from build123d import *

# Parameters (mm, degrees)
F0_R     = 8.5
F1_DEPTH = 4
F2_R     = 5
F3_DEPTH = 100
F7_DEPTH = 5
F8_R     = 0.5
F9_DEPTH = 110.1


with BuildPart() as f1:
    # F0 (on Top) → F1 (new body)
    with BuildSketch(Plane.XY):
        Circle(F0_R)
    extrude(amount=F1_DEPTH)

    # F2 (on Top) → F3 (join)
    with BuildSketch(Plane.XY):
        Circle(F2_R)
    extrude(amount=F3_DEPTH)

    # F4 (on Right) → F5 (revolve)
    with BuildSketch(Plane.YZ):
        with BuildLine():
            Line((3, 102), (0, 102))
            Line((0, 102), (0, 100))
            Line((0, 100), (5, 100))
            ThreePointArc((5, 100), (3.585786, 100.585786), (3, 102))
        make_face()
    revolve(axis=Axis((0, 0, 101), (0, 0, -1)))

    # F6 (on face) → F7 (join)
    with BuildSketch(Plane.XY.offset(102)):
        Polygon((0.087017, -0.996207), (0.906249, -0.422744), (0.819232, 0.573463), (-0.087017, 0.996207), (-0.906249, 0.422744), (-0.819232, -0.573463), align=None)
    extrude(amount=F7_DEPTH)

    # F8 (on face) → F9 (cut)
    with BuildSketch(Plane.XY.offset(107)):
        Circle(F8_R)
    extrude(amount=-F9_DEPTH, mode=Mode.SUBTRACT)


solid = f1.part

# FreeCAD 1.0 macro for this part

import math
import FreeCAD as App
import Part
import Sketcher

V = App.Vector
Q = App.Units.Quantity

doc = App.newDocument("Part")
body = doc.addObject("PartDesign::Body", "Body")

# Sketch on XY plane
sketch1 = body.newObject("Sketcher::SketchObject", "Sketch")
sketch1.AttachmentSupport = (doc.getObject("XY_Plane"), [""])
sketch1.MapMode = "FlatFace"
sketch1.addGeometry(Part.Circle(V(0, 0, 0), V(0, 0, 1), 8), False)
sketch1.addConstraint([
    Sketcher.Constraint("Coincident", 0, 3, -1, 1),
    Sketcher.Constraint("Diameter", 0, Q("17 mm")),
])
pad1 = body.newObject("PartDesign::Pad", "Pad")
pad1.Profile = sketch1
pad1.Length = 4

# Sketch on XY plane
sketch2 = body.newObject("Sketcher::SketchObject", "Sketch001")
sketch2.AttachmentSupport = (doc.getObject("XY_Plane"), [""])
sketch2.MapMode = "FlatFace"
sketch2.addGeometry(Part.Circle(V(0, 0, 0), V(0, 0, 1), 5), False)
sketch2.addConstraint([
    Sketcher.Constraint("Coincident", 0, 3, -1, 1),
    Sketcher.Constraint("Diameter", 0, Q("10 mm")),
])
pad2 = body.newObject("PartDesign::Pad", "Pad001")
pad2.Profile = sketch2
pad2.Length = 100

# Sketch on YZ plane
sketch3 = body.newObject("Sketcher::SketchObject", "Sketch002")
sketch3.AttachmentSupport = (doc.getObject("YZ_Plane"), [""])
sketch3.MapMode = "FlatFace"
sketch3.addGeometry([
    Part.LineSegment(V(3, 102, 0), V(0, 102, 0)),
    Part.LineSegment(V(0, 102, 0), V(0, 100, 0)),
    Part.LineSegment(V(0, 100, 0), V(5, 100, 0)),
    Part.ArcOfCircle(Part.Circle(V(5, 102, 0), V(0, 0, 1), 2), math.radians(180), math.radians(270)),
], False)
sketch3.addConstraint([
    Sketcher.Constraint("Coincident", 0, 2, 1, 1),
    Sketcher.Constraint("Coincident", 1, 2, 2, 1),
    Sketcher.Constraint("Tangent", 2, 2, 3, 2),
    Sketcher.Constraint("Coincident", 3, 1, 0, 1),
    Sketcher.Constraint("Horizontal", 0),
    Sketcher.Constraint("Vertical", 1),
    Sketcher.Constraint("Horizontal", 2),
    Sketcher.Constraint("PointOnObject", 0, 2, -2),
    Sketcher.Constraint("Horizontal", 3, 3, 0, 2),
    Sketcher.Constraint("Radius", 3, Q("1.999999 mm")),
    Sketcher.Constraint("DistanceX", 0, 2, 0, 1, Q("3 mm")),
    Sketcher.Constraint("DistanceY", -1, 1, 3, 3, Q("101.999999 mm")),
])
revolution = body.newObject("PartDesign::Revolution", "Revolution")
revolution.Profile = sketch3
revolution.ReferenceAxis = (sketch3, ["V_Axis"])
revolution.Angle = 360

# Sketch on XY plane
sketch4 = body.newObject("Sketcher::SketchObject", "Sketch003")
sketch4.AttachmentSupport = (doc.getObject("XY_Plane"), [""])
sketch4.MapMode = "FlatFace"
sketch4.AttachmentOffset = App.Placement(V(0, 0, 102), App.Rotation())
sketch4.addGeometry([
    Part.LineSegment(V(0.1, -1, 0), V(0.9, -0.4, 0)),  # 0
    Part.LineSegment(V(0.9, -0.4, 0), V(0.8, 0.6, 0)),  # 1
    Part.LineSegment(V(0.8, 0.6, 0), V(-0.1, 1, 0)),  # 2
    Part.LineSegment(V(-0.1, 1, 0), V(-0.9, 0.4, 0)),  # 3
    Part.LineSegment(V(-0.9, 0.4, 0), V(-0.8, -0.6, 0)),  # 4
    Part.LineSegment(V(-0.8, -0.6, 0), V(0.1, -1, 0)),  # 5
], False)
sketch4.addConstraint([
    Sketcher.Constraint("Coincident", 0, 2, 1, 1),
    Sketcher.Constraint("Coincident", 1, 2, 2, 1),
    Sketcher.Constraint("Coincident", 2, 2, 3, 1),
    Sketcher.Constraint("Coincident", 3, 2, 4, 1),
    Sketcher.Constraint("Coincident", 4, 2, 5, 1),
    Sketcher.Constraint("Coincident", 5, 2, 0, 1),
    Sketcher.Constraint("Symmetric", 0, 2, 3, 2, -1, 1),
    Sketcher.Constraint("Symmetric", 1, 2, 4, 2, -1, 1),
    Sketcher.Constraint("Symmetric", 2, 2, 5, 2, -1, 1),
    Sketcher.Constraint("Equal", 0, 1),
    Sketcher.Constraint("Equal", 1, 2),
    Sketcher.Constraint("Distance", 0, Q("1 mm")),
    Sketcher.Constraint("DistanceX", -1, 1, 0, 2, Q("0.906249 mm")),
    Sketcher.Constraint("DistanceX", -1, 1, 1, 2, Q("0.819232 mm")),
    Sketcher.Constraint("DistanceX", 2, 2, 1, 2, Q("0.906249 mm")),
])
pad3 = body.newObject("PartDesign::Pad", "Pad002")
pad3.Profile = sketch4
pad3.Length = 5

# Sketch on XY plane
sketch5 = body.newObject("Sketcher::SketchObject", "Sketch004")
sketch5.AttachmentSupport = (doc.getObject("XY_Plane"), [""])
sketch5.MapMode = "FlatFace"
sketch5.AttachmentOffset = App.Placement(V(0, 0, 107), App.Rotation())
sketch5.addGeometry(Part.Circle(V(0, 0, 0), V(0, 0, 1), 0.5), False)
sketch5.addConstraint([
    Sketcher.Constraint("Coincident", 0, 3, -1, 1),
    Sketcher.Constraint("Diameter", 0, Q("1 mm")),
])
pocket1 = body.newObject("PartDesign::Pocket", "Pocket")
pocket1.Profile = sketch5
pocket1.Length = 110.1

doc.recompute()
